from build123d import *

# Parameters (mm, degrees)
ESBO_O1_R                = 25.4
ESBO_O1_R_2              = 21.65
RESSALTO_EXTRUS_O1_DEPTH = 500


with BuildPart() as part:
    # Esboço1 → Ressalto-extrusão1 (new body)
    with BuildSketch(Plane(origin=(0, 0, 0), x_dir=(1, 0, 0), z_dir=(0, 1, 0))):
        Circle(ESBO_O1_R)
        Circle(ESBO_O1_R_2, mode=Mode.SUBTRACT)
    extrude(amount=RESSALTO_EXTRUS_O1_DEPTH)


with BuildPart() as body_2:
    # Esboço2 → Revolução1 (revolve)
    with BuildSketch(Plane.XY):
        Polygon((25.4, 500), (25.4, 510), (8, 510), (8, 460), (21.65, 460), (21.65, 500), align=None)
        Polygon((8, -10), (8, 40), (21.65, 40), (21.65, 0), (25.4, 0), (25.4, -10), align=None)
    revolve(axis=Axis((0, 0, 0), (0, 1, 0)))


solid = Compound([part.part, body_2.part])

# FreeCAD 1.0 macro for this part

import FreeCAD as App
import Part
import Sketcher


def add_polygon(sketch, points):
    """Adds a closed chain of lines whose ends are joined by coincident constraints."""
    first, n = sketch.GeometryCount, len(points)
    for a, b in zip(points, points[1:] + points[:1]):
        sketch.addGeometry(Part.LineSegment(App.Vector(*a, 0), App.Vector(*b, 0)), False)
    for i in range(n):
        sketch.addConstraint(Sketcher.Constraint("Coincident", first + i, 2, first + (i + 1) % n, 1))

doc = App.newDocument("Part")
body = doc.addObject("PartDesign::Body", "Body")

sketch1 = body.newObject("Sketcher::SketchObject", "Sketch")
sketch1.AttachmentSupport = (doc.getObject("XZ_Plane"), [""])
sketch1.MapMode = "FlatFace"
sketch1.addGeometry([
    Part.Circle(App.Vector(0, 0, 0), App.Vector(0, 0, 1), 25.4),
    Part.Circle(App.Vector(0, 0, 0), App.Vector(0, 0, 1), 21.65),
], False)
sketch1.addConstraint([
    Sketcher.Constraint("Coincident", 0, 3, -1, 1),
    Sketcher.Constraint("Coincident", 1, 3, -1, 1),
    Sketcher.Constraint("Diameter", 0, 50.8),
    Sketcher.Constraint("Diameter", 1, 43.3),
])
pad1 = body.newObject("PartDesign::Pad", "Pad")
pad1.Profile = sketch1
pad1.Length = 500
pad1.Reversed = True
body2 = doc.addObject("PartDesign::Body", "Body001")
body2.AllowCompound = True

sketch2 = body2.newObject("Sketcher::SketchObject", "Sketch001")
sketch2.AttachmentSupport = (doc.getObject("XY_Plane001"), [""])
sketch2.MapMode = "FlatFace"
add_polygon(sketch2, [(25.4, 500), (25.4, 510), (8, 510), (8, 460), (21.65, 460), (21.65, 500)])
add_polygon(sketch2, [(8, 40), (8, -10), (25.4, -10), (25.4, 0), (21.65, 0), (21.65, 40)])
sketch2.addConstraint([
    Sketcher.Constraint("Vertical", 0),
    Sketcher.Constraint("Horizontal", 1),
    Sketcher.Constraint("Vertical", 2),
    Sketcher.Constraint("Horizontal", 3),
    Sketcher.Constraint("Vertical", 4),
    Sketcher.Constraint("Horizontal", 5),
    Sketcher.Constraint("Vertical", 6),
    Sketcher.Constraint("Horizontal", 7),
    Sketcher.Constraint("Vertical", 8),
    Sketcher.Constraint("Horizontal", 9),
    Sketcher.Constraint("Vertical", 10),
    Sketcher.Constraint("Horizontal", 11),
    Sketcher.Constraint("PointOnObject", 8, 2, -1),
    Sketcher.Constraint("Vertical", 2, 2, 6, 2),
    Sketcher.Constraint("Vertical", 5, 2, 7, 2),
    Sketcher.Constraint("Vertical", 4, 2, 9, 2),
    Sketcher.Constraint("Equal", 2, 6),
    Sketcher.Constraint("Equal", 0, 8),
    Sketcher.Constraint("DistanceY", 0, 1, 0, 2, 10.0),
    Sketcher.Constraint("DistanceY", 2, 2, 2, 1, 50.0),
    Sketcher.Constraint("DistanceX", 1, 2, 1, 1, 17.4),
    Sketcher.Constraint("DistanceY", -1, 1, 0, 2, 510.0),
    Sketcher.Constraint("DistanceX", -1, 1, 1, 2, 8.0),
    Sketcher.Constraint("DistanceX", 3, 1, 3, 2, 13.65),
])
revolution = body2.newObject("PartDesign::Revolution", "Revolution")
revolution.Profile = sketch2
revolution.ReferenceAxis = (sketch2, ["V_Axis"])
revolution.Angle = 360

doc.recompute()
